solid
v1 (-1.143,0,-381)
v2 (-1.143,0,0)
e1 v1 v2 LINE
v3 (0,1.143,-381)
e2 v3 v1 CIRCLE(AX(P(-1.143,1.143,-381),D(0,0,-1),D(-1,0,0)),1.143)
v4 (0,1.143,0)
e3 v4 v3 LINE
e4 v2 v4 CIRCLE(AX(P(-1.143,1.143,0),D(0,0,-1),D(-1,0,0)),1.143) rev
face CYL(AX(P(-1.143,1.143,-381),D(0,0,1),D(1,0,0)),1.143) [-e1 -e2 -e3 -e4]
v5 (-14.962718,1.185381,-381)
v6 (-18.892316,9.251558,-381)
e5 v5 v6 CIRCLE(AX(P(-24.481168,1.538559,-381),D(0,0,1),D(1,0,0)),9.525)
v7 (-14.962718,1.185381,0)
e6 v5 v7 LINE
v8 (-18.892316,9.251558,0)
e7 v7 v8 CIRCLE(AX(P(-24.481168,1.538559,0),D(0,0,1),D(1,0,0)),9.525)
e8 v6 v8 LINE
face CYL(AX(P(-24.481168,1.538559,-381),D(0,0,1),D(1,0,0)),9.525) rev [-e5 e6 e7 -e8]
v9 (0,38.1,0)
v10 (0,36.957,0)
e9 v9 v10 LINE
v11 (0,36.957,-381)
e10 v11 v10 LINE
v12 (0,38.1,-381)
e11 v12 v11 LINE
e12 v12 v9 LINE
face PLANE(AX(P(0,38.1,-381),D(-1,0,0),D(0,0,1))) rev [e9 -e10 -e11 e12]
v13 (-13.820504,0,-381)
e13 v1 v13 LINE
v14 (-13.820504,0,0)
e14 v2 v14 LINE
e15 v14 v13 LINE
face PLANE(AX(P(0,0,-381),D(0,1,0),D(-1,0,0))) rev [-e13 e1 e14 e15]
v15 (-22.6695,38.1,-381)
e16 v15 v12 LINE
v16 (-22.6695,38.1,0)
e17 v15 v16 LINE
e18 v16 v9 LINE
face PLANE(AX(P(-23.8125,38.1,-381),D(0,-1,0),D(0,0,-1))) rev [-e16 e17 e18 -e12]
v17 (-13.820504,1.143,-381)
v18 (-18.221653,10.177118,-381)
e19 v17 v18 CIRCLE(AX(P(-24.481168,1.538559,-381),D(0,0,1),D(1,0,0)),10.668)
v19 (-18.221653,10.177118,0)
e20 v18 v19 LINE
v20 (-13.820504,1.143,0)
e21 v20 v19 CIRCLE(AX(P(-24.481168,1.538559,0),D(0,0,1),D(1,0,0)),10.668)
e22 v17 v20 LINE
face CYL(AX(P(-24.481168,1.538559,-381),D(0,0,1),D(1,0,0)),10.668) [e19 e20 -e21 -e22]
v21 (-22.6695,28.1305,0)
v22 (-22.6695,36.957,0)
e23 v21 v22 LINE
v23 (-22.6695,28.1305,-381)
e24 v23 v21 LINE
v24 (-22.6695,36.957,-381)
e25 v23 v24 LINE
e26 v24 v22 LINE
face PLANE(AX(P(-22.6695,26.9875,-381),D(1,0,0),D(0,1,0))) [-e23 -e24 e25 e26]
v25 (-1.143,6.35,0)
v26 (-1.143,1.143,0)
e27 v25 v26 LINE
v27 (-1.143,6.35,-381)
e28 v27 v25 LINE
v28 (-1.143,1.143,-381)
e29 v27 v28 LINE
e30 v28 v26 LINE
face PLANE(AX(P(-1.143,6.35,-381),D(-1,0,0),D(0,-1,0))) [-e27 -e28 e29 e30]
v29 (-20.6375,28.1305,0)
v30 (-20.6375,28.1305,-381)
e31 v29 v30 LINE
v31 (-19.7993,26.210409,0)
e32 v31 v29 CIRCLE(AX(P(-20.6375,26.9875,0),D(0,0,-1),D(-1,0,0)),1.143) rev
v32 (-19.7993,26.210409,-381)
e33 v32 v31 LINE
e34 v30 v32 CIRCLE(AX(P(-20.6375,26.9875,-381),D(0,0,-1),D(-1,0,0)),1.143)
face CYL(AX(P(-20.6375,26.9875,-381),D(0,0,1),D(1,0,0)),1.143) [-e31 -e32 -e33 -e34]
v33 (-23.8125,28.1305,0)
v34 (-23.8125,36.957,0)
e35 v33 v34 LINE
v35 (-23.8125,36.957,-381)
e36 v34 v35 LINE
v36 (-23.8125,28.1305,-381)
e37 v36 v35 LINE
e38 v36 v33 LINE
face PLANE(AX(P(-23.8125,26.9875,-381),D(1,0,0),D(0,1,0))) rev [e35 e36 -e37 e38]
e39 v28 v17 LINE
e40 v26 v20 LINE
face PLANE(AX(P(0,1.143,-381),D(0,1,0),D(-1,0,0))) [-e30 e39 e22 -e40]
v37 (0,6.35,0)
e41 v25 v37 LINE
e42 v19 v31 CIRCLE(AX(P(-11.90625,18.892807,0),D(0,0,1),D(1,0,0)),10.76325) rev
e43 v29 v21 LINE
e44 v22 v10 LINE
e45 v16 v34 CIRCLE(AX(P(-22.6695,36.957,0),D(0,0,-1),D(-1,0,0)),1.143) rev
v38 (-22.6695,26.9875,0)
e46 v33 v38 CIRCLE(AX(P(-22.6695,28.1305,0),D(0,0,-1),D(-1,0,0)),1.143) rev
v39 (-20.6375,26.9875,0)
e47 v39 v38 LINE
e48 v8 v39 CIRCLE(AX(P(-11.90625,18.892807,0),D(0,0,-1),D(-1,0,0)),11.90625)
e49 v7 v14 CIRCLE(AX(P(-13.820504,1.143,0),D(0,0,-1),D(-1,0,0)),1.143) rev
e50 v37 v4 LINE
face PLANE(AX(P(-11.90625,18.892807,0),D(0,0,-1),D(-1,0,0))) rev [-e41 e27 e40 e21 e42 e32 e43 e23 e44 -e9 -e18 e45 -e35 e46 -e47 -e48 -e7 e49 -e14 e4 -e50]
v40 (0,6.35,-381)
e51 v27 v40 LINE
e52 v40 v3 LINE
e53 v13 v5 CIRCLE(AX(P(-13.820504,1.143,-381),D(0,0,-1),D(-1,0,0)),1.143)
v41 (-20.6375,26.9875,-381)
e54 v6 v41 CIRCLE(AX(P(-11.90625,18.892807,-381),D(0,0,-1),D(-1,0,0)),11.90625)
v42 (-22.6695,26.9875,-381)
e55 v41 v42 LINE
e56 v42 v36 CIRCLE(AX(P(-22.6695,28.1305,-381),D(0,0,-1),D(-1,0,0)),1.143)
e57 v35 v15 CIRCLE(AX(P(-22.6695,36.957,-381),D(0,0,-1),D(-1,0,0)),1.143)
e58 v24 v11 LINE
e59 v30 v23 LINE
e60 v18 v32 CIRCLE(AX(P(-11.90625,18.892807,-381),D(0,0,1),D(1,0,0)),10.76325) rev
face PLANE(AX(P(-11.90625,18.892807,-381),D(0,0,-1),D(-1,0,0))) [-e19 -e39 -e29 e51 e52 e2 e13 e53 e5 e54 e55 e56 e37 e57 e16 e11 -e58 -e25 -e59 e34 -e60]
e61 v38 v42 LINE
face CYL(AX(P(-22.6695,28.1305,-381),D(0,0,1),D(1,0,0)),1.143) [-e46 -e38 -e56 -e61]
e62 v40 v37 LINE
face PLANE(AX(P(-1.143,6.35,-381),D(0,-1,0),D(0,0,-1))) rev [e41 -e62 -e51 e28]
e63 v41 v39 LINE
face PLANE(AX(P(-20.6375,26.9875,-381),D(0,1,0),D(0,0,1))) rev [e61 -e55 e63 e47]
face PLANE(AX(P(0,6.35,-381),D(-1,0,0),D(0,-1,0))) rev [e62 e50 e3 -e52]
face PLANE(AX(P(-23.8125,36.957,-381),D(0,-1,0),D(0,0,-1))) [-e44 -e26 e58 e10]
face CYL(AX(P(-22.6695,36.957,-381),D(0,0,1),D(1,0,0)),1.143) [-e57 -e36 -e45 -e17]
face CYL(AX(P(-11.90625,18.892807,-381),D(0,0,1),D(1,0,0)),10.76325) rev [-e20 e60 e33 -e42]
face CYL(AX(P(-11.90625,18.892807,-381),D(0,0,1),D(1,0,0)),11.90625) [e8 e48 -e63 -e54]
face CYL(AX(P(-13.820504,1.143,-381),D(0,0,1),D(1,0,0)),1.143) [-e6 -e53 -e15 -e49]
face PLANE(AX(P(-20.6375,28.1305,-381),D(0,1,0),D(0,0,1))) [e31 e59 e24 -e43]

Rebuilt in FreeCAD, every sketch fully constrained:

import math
import FreeCAD as App
import Part
import Sketcher
from FreeCAD import Vector
Q = App.Units.Quantity


def edges_at(feature, points):
    """Names of the edges that pass closest to the given points."""
    edges = feature.Shape.Edges
    near = lambda p: min(range(len(edges)), key=lambda i: edges[i].distToShape(Part.Vertex(*p))[0])
    return sorted({f"Edge{near(p) + 1}" for p in points})

doc = App.newDocument("Part")
body = doc.addObject("PartDesign::Body", "Body")

# Sketch on XY plane
sketch1 = doc.addObject("Sketcher::SketchObject", "Sketch")
body.addObject(sketch1)
sketch1.AttachmentSupport = (doc.XY_Plane, [""])
sketch1.MapMode = "FlatFace"
sketch1.addGeometry([
    Part.LineSegment(Vector(0, 0, 0), Vector(0, 6.3, 0)),  # 0
    Part.LineSegment(Vector(0, 6.3, 0), Vector(-1.1, 6.3, 0)),  # 1
    Part.LineSegment(Vector(-1.1, 6.3, 0), Vector(-1.1, 1.1, 0)),  # 2
    Part.LineSegment(Vector(-1.1, 1.1, 0), Vector(-13.8, 1.1, 0)),  # 3
    Part.ArcOfCircle(Part.Circle(Vector(-24.5, 1.5, 0), Vector(0, 0, 1), 10.7), math.radians(-2), math.radians(54)),  # 4
    Part.ArcOfCircle(Part.Circle(Vector(-11.9, 18.9, 0), Vector(0, 0, 1), 10.8), math.radians(121), math.radians(234)),  # 5
    Part.LineSegment(Vector(-17.4, 28.1, 0), Vector(-22.7, 28.1, 0)),  # 6
    Part.LineSegment(Vector(-22.7, 28.1, 0), Vector(-22.7, 37, 0)),  # 7
    Part.LineSegment(Vector(-22.7, 37, 0), Vector(0, 37, 0)),  # 8
    Part.LineSegment(Vector(0, 37, 0), Vector(0, 38.1, 0)),  # 9
    Part.LineSegment(Vector(0, 38.1, 0), Vector(-23.8, 38.1, 0)),  # 10
    Part.LineSegment(Vector(-23.8, 38.1, 0), Vector(-23.8, 27, 0)),  # 11
    Part.LineSegment(Vector(-23.8, 27, 0), Vector(-20.6, 27, 0)),  # 12
    Part.ArcOfCircle(Part.Circle(Vector(-11.9, 18.9, 0), Vector(0, 0, 1), 11.9), math.radians(137), math.radians(234)),  # 13
    Part.ArcOfCircle(Part.Circle(Vector(-24.5, 1.5, 0), Vector(0, 0, 1), 9.5), math.radians(-9), math.radians(54)),  # 14
    Part.LineSegment(Vector(-15.1, 0, 0), Vector(0, 0, 0)),  # 15
], False)
sketch1.addConstraint([
    Sketcher.Constraint("Coincident", 0, 2, 1, 1),
    Sketcher.Constraint("Coincident", 1, 2, 2, 1),
    Sketcher.Constraint("Coincident", 2, 2, 3, 1),
    Sketcher.Constraint("Coincident", 3, 2, 4, 1),
    Sketcher.Constraint("Tangent", 4, 2, 5, 2),
    Sketcher.Constraint("Coincident", 5, 1, 6, 1),
    Sketcher.Constraint("Coincident", 6, 2, 7, 1),
    Sketcher.Constraint("Coincident", 7, 2, 8, 1),
    Sketcher.Constraint("Coincident", 8, 2, 9, 1),
    Sketcher.Constraint("Coincident", 9, 2, 10, 1),
    Sketcher.Constraint("Coincident", 10, 2, 11, 1),
    Sketcher.Constraint("Coincident", 11, 2, 12, 1),
    Sketcher.Constraint("Coincident", 12, 2, 13, 1),
    Sketcher.Constraint("Tangent", 13, 2, 14, 2),
    Sketcher.Constraint("Coincident", 14, 1, 15, 1),
    Sketcher.Constraint("Coincident", 15, 2, 0, 1),
    Sketcher.Constraint("Vertical", 0),
    Sketcher.Constraint("Horizontal", 1),
    Sketcher.Constraint("Vertical", 2),
    Sketcher.Constraint("Horizontal", 3),
    Sketcher.Constraint("Horizontal", 6),
    Sketcher.Constraint("Vertical", 7),
    Sketcher.Constraint("Horizontal", 8),
    Sketcher.Constraint("Vertical", 9),
    Sketcher.Constraint("Horizontal", 10),
    Sketcher.Constraint("Vertical", 11),
    Sketcher.Constraint("Horizontal", 12),
    Sketcher.Constraint("Horizontal", 15),
    Sketcher.Constraint("Coincident", 15, 2, -1, 1),
    Sketcher.Constraint("Coincident", 13, 3, 5, 3),
    Sketcher.Constraint("Coincident", 14, 3, 4, 3),
    Sketcher.Constraint("PointOnObject", 8, 2, -2),
    Sketcher.Constraint("Equal", 1, 9),
    Sketcher.Constraint("Radius", 4, Q("0.42 in")),
    Sketcher.Constraint("Radius", 13, Q("0.46875 in")),
    Sketcher.Constraint("Radius", 14, Q("0.375 in")),
    Sketcher.Constraint("DistanceY", 0, 1, 0, 2, Q("0.25 in")),
    Sketcher.Constraint("DistanceY", -1, 1, 9, 2, Q("1.5 in")),
    Sketcher.Constraint("DistanceX", 1, 2, 1, 1, Q("0.045 in")),
    Sketcher.Constraint("DistanceX", 10, 2, 10, 1, Q("0.9375 in")),
    Sketcher.Constraint("DistanceX", 12, 1, 12, 2, Q("0.125 in")),
    Sketcher.Constraint("DistanceX", 15, 1, 15, 2, Q("0.59375 in")),
    Sketcher.Constraint("DistanceY", 2, 2, 2, 1, Q("0.205 in")),
    Sketcher.Constraint("DistanceY", 11, 2, 11, 1, Q("0.4375 in")),
    Sketcher.Constraint("DistanceX", 6, 2, 12, 2, Q("0.08 in")),
    Sketcher.Constraint("DistanceY", 7, 1, 7, 2, Q("0.3475 in")),
    Sketcher.Constraint("DistanceX", 5, 3, -1, 1, Q("0.46875 in")),
])
pad1 = doc.addObject("PartDesign::Pad", "Pad")
body.addObject(pad1)
pad1.Profile = sketch1
pad1.Length = Q("15 in")
pad1.Reversed = True
doc.recompute()

fillet = doc.addObject("PartDesign::Fillet", "Fillet")
body.addObject(fillet)
fillet.Base = (pad1, edges_at(pad1, [
    (-17.43, 28.131, -190.5),
    (0, 0, -190.5),
    (-15.081, 0, -190.5),
    (-23.812, 26.988, -190.5),
    (-23.812, 38.1, -190.5),
]))
fillet.Radius = Q("0.045 in")

doc.recompute()
